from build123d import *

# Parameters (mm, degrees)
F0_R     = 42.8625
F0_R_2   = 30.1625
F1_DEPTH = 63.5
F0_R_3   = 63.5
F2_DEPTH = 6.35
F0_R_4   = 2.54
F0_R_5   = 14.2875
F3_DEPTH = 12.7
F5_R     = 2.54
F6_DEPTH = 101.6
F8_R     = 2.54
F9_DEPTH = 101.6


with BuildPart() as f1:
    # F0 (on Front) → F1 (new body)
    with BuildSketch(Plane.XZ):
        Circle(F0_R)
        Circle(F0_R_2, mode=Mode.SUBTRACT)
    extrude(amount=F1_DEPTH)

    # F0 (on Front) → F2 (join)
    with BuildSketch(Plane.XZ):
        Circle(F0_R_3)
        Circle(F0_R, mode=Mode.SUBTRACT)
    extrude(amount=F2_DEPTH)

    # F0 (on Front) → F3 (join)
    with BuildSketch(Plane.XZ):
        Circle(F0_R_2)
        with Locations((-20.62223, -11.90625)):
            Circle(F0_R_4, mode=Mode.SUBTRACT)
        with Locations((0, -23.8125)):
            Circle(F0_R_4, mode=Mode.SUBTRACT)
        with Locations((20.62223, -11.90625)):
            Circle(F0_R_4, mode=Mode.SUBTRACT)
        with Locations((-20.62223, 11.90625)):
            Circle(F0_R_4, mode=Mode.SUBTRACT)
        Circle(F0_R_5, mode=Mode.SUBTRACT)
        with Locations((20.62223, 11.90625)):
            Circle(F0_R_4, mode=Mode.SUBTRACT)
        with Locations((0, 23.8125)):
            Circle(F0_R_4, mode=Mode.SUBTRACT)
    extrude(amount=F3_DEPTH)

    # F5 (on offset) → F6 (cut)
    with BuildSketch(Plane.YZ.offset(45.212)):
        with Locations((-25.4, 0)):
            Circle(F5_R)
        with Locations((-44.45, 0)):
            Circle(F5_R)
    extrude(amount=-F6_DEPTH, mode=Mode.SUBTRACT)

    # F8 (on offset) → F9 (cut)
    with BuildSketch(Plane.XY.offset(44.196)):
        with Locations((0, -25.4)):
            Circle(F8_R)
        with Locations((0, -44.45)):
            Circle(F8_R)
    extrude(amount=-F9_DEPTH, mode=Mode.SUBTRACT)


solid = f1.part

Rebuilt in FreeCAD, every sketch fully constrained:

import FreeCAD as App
import Part
import Sketcher

V = App.Vector
Q = App.Units.Quantity

doc = App.newDocument("Part")
params = doc.addObject("Spreadsheet::Sheet", "Params")
for row, (alias, value) in enumerate([
    ("sketch1_diameter", "3.375 in"),
    ("sketch1_diameter2", "2.375 in"),
    ("pad1_length", "2.5 in"),
    ("sketch2_diameter", "5 in"),
    ("sketch2_diameter2", "3.375 in"),
    ("pad2_length", "0.25 in"),
    ("sketch3_diameter", "0.2 in"),
    ("sketch3_diameter2", "2.375 in"),
    ("sketch3_diameter3", "1.125 in"),
    ("pad3_length", "0.5 in"),
    ("sketch4_diameter", "0.2 in"),
    ("pocket1_length", "4 in"),
    ("sketch5_diameter", "0.2 in"),
    ("pocket2_length", "4 in"),
], start=1):
    params.set(f"A{row}", alias)
    params.set(f"B{row}", "=" + value)
    params.setAlias(f"B{row}", alias)

body = doc.addObject("PartDesign::Body", "Body")

# Sketch on XZ plane
sketch1 = doc.addObject("Sketcher::SketchObject", "Sketch")
body.addObject(sketch1)
sketch1.AttachmentSupport = (doc.XZ_Plane, [""])
sketch1.MapMode = "FlatFace"
sketch1.addGeometry([
    Part.Circle(V(0, 0, 0), V(0, 0, 1), 43),
    Part.Circle(V(0, 0, 0), V(0, 0, 1), 30),
], False)
sketch1.addConstraint([
    Sketcher.Constraint("Coincident", 0, 3, -1, 1),
    Sketcher.Constraint("Coincident", 1, 3, -1, 1),
    Sketcher.Constraint("Diameter", 0, Q("3.375 in")),
    Sketcher.Constraint("Diameter", 1, Q("2.375 in")),
])
sketch1.setExpression("Constraints[2]", "Params.sketch1_diameter")
sketch1.setExpression("Constraints[3]", "Params.sketch1_diameter2")
pad1 = doc.addObject("PartDesign::Pad", "Pad")
body.addObject(pad1)
pad1.Profile = sketch1
pad1.setExpression("Length", "Params.pad1_length")

# Sketch on XZ plane
sketch2 = doc.addObject("Sketcher::SketchObject", "Sketch001")
body.addObject(sketch2)
sketch2.AttachmentSupport = (doc.XZ_Plane, [""])
sketch2.MapMode = "FlatFace"
sketch2.addGeometry([
    Part.Circle(V(0, 0, 0), V(0, 0, 1), 64),
    Part.Circle(V(0, 0, 0), V(0, 0, 1), 43),
], False)
sketch2.addConstraint([
    Sketcher.Constraint("Coincident", 0, 3, -1, 1),
    Sketcher.Constraint("Coincident", 1, 3, -1, 1),
    Sketcher.Constraint("Diameter", 0, Q("5 in")),
    Sketcher.Constraint("Diameter", 1, Q("3.375 in")),
])
sketch2.setExpression("Constraints[2]", "Params.sketch2_diameter")
sketch2.setExpression("Constraints[3]", "Params.sketch2_diameter2")
pad2 = doc.addObject("PartDesign::Pad", "Pad001")
body.addObject(pad2)
pad2.Profile = sketch2
pad2.setExpression("Length", "Params.pad2_length")

# Sketch on XZ plane
sketch3 = doc.addObject("Sketcher::SketchObject", "Sketch002")
body.addObject(sketch3)
sketch3.AttachmentSupport = (doc.XZ_Plane, [""])
sketch3.MapMode = "FlatFace"
sketch3.addGeometry([
    Part.Circle(V(0, 0, 0), V(0, 0, 1), 30.2),  # 0
    Part.Circle(V(0, -23.8, 0), V(0, 0, 1), 2.5),  # 1
    Part.Circle(V(-20.6, -11.9, 0), V(0, 0, 1), 2.5),  # 2
    Part.Circle(V(20.6, -11.9, 0), V(0, 0, 1), 2.5),  # 3
    Part.Circle(V(-20.6, 11.9, 0), V(0, 0, 1), 2.5),  # 4
    Part.Circle(V(0, 23.8, 0), V(0, 0, 1), 2.5),  # 5
    Part.Circle(V(0, 0, 0), V(0, 0, 1), 14.3),  # 6
    Part.Circle(V(20.6, 11.9, 0), V(0, 0, 1), 2.5),  # 7
], False)
sketch3.addConstraint([
    Sketcher.Constraint("Coincident", 0, 3, -1, 1),
    Sketcher.Constraint("Coincident", 6, 3, -1, 1),
    Sketcher.Constraint("Equal", 1, 2),
    Sketcher.Constraint("Equal", 2, 3),
    Sketcher.Constraint("Equal", 3, 4),
    Sketcher.Constraint("Equal", 4, 5),
    Sketcher.Constraint("Equal", 5, 7),
    Sketcher.Constraint("Symmetric", 3, 3, 4, 3, -1, 1),
    Sketcher.Constraint("Symmetric", 1, 3, 5, 3, -1, 1),
    Sketcher.Constraint("Symmetric", 2, 3, 7, 3, -1, 1),
    Sketcher.Constraint("Symmetric", 2, 3, 3, 3, -2),
    Sketcher.Constraint("PointOnObject", 1, 3, -2),
    Sketcher.Constraint("Diameter", 1, Q("0.2 in")),
    Sketcher.Constraint("Diameter", 0, Q("2.375 in")),
    Sketcher.Constraint("Diameter", 6, Q("1.125 in")),
    Sketcher.Constraint("DistanceY", 1, 3, -1, 1, Q("0.9375 in")),
    Sketcher.Constraint("DistanceY", 2, 3, -1, 1, Q("0.46875 in")),
    Sketcher.Constraint("DistanceX", 2, 3, -1, 1, Q("20.62223 mm")),
])
sketch3.setExpression("Constraints[12]", "Params.sketch3_diameter")
sketch3.setExpression("Constraints[13]", "Params.sketch3_diameter2")
sketch3.setExpression("Constraints[14]", "Params.sketch3_diameter3")
pad3 = doc.addObject("PartDesign::Pad", "Pad002")
body.addObject(pad3)
pad3.Profile = sketch3
pad3.setExpression("Length", "Params.pad3_length")

# Sketch on YZ plane
sketch4 = doc.addObject("Sketcher::SketchObject", "Sketch003")
body.addObject(sketch4)
sketch4.AttachmentSupport = (doc.YZ_Plane, [""])
sketch4.MapMode = "FlatFace"
sketch4.AttachmentOffset = App.Placement(V(0, 0, 1.78 * 25.4), App.Rotation())
sketch4.addGeometry([
    Part.Circle(V(-25.4, 0, 0), V(0, 0, 1), 2.5),
    Part.Circle(V(-44.5, 0, 0), V(0, 0, 1), 2.5),
], False)
sketch4.addConstraint([
    Sketcher.Constraint("Equal", 0, 1),
    Sketcher.Constraint("PointOnObject", 0, 3, -1),
    Sketcher.Constraint("PointOnObject", 1, 3, -1),
    Sketcher.Constraint("Diameter", 0, Q("0.2 in")),
    Sketcher.Constraint("DistanceX", 0, 3, -1, 1, Q("1 in")),
    Sketcher.Constraint("DistanceX", 1, 3, -1, 1, Q("1.75 in")),
])
sketch4.setExpression("Constraints[3]", "Params.sketch4_diameter")
pocket1 = doc.addObject("PartDesign::Pocket", "Pocket")
body.addObject(pocket1)
pocket1.Profile = sketch4
pocket1.setExpression("Length", "Params.pocket1_length")

# Sketch on XY plane
sketch5 = doc.addObject("Sketcher::SketchObject", "Sketch004")
body.addObject(sketch5)
sketch5.AttachmentSupport = (doc.XY_Plane, [""])
sketch5.MapMode = "FlatFace"
sketch5.AttachmentOffset = App.Placement(V(0, 0, 1.74 * 25.4), App.Rotation())
sketch5.addGeometry([
    Part.Circle(V(0, -25.4, 0), V(0, 0, 1), 2.5),
    Part.Circle(V(0, -44.5, 0), V(0, 0, 1), 2.5),
], False)
sketch5.addConstraint([
    Sketcher.Constraint("Equal", 0, 1),
    Sketcher.Constraint("PointOnObject", 0, 3, -2),
    Sketcher.Constraint("PointOnObject", 1, 3, -2),
    Sketcher.Constraint("Diameter", 0, Q("0.2 in")),
    Sketcher.Constraint("DistanceY", 0, 3, -1, 1, Q("1 in")),
    Sketcher.Constraint("DistanceY", 1, 3, -1, 1, Q("1.75 in")),
])
sketch5.setExpression("Constraints[3]", "Params.sketch5_diameter")
pocket2 = doc.addObject("PartDesign::Pocket", "Pocket001")
body.addObject(pocket2)
pocket2.Profile = sketch5
pocket2.setExpression("Length", "Params.pocket2_length")

doc.recompute()
